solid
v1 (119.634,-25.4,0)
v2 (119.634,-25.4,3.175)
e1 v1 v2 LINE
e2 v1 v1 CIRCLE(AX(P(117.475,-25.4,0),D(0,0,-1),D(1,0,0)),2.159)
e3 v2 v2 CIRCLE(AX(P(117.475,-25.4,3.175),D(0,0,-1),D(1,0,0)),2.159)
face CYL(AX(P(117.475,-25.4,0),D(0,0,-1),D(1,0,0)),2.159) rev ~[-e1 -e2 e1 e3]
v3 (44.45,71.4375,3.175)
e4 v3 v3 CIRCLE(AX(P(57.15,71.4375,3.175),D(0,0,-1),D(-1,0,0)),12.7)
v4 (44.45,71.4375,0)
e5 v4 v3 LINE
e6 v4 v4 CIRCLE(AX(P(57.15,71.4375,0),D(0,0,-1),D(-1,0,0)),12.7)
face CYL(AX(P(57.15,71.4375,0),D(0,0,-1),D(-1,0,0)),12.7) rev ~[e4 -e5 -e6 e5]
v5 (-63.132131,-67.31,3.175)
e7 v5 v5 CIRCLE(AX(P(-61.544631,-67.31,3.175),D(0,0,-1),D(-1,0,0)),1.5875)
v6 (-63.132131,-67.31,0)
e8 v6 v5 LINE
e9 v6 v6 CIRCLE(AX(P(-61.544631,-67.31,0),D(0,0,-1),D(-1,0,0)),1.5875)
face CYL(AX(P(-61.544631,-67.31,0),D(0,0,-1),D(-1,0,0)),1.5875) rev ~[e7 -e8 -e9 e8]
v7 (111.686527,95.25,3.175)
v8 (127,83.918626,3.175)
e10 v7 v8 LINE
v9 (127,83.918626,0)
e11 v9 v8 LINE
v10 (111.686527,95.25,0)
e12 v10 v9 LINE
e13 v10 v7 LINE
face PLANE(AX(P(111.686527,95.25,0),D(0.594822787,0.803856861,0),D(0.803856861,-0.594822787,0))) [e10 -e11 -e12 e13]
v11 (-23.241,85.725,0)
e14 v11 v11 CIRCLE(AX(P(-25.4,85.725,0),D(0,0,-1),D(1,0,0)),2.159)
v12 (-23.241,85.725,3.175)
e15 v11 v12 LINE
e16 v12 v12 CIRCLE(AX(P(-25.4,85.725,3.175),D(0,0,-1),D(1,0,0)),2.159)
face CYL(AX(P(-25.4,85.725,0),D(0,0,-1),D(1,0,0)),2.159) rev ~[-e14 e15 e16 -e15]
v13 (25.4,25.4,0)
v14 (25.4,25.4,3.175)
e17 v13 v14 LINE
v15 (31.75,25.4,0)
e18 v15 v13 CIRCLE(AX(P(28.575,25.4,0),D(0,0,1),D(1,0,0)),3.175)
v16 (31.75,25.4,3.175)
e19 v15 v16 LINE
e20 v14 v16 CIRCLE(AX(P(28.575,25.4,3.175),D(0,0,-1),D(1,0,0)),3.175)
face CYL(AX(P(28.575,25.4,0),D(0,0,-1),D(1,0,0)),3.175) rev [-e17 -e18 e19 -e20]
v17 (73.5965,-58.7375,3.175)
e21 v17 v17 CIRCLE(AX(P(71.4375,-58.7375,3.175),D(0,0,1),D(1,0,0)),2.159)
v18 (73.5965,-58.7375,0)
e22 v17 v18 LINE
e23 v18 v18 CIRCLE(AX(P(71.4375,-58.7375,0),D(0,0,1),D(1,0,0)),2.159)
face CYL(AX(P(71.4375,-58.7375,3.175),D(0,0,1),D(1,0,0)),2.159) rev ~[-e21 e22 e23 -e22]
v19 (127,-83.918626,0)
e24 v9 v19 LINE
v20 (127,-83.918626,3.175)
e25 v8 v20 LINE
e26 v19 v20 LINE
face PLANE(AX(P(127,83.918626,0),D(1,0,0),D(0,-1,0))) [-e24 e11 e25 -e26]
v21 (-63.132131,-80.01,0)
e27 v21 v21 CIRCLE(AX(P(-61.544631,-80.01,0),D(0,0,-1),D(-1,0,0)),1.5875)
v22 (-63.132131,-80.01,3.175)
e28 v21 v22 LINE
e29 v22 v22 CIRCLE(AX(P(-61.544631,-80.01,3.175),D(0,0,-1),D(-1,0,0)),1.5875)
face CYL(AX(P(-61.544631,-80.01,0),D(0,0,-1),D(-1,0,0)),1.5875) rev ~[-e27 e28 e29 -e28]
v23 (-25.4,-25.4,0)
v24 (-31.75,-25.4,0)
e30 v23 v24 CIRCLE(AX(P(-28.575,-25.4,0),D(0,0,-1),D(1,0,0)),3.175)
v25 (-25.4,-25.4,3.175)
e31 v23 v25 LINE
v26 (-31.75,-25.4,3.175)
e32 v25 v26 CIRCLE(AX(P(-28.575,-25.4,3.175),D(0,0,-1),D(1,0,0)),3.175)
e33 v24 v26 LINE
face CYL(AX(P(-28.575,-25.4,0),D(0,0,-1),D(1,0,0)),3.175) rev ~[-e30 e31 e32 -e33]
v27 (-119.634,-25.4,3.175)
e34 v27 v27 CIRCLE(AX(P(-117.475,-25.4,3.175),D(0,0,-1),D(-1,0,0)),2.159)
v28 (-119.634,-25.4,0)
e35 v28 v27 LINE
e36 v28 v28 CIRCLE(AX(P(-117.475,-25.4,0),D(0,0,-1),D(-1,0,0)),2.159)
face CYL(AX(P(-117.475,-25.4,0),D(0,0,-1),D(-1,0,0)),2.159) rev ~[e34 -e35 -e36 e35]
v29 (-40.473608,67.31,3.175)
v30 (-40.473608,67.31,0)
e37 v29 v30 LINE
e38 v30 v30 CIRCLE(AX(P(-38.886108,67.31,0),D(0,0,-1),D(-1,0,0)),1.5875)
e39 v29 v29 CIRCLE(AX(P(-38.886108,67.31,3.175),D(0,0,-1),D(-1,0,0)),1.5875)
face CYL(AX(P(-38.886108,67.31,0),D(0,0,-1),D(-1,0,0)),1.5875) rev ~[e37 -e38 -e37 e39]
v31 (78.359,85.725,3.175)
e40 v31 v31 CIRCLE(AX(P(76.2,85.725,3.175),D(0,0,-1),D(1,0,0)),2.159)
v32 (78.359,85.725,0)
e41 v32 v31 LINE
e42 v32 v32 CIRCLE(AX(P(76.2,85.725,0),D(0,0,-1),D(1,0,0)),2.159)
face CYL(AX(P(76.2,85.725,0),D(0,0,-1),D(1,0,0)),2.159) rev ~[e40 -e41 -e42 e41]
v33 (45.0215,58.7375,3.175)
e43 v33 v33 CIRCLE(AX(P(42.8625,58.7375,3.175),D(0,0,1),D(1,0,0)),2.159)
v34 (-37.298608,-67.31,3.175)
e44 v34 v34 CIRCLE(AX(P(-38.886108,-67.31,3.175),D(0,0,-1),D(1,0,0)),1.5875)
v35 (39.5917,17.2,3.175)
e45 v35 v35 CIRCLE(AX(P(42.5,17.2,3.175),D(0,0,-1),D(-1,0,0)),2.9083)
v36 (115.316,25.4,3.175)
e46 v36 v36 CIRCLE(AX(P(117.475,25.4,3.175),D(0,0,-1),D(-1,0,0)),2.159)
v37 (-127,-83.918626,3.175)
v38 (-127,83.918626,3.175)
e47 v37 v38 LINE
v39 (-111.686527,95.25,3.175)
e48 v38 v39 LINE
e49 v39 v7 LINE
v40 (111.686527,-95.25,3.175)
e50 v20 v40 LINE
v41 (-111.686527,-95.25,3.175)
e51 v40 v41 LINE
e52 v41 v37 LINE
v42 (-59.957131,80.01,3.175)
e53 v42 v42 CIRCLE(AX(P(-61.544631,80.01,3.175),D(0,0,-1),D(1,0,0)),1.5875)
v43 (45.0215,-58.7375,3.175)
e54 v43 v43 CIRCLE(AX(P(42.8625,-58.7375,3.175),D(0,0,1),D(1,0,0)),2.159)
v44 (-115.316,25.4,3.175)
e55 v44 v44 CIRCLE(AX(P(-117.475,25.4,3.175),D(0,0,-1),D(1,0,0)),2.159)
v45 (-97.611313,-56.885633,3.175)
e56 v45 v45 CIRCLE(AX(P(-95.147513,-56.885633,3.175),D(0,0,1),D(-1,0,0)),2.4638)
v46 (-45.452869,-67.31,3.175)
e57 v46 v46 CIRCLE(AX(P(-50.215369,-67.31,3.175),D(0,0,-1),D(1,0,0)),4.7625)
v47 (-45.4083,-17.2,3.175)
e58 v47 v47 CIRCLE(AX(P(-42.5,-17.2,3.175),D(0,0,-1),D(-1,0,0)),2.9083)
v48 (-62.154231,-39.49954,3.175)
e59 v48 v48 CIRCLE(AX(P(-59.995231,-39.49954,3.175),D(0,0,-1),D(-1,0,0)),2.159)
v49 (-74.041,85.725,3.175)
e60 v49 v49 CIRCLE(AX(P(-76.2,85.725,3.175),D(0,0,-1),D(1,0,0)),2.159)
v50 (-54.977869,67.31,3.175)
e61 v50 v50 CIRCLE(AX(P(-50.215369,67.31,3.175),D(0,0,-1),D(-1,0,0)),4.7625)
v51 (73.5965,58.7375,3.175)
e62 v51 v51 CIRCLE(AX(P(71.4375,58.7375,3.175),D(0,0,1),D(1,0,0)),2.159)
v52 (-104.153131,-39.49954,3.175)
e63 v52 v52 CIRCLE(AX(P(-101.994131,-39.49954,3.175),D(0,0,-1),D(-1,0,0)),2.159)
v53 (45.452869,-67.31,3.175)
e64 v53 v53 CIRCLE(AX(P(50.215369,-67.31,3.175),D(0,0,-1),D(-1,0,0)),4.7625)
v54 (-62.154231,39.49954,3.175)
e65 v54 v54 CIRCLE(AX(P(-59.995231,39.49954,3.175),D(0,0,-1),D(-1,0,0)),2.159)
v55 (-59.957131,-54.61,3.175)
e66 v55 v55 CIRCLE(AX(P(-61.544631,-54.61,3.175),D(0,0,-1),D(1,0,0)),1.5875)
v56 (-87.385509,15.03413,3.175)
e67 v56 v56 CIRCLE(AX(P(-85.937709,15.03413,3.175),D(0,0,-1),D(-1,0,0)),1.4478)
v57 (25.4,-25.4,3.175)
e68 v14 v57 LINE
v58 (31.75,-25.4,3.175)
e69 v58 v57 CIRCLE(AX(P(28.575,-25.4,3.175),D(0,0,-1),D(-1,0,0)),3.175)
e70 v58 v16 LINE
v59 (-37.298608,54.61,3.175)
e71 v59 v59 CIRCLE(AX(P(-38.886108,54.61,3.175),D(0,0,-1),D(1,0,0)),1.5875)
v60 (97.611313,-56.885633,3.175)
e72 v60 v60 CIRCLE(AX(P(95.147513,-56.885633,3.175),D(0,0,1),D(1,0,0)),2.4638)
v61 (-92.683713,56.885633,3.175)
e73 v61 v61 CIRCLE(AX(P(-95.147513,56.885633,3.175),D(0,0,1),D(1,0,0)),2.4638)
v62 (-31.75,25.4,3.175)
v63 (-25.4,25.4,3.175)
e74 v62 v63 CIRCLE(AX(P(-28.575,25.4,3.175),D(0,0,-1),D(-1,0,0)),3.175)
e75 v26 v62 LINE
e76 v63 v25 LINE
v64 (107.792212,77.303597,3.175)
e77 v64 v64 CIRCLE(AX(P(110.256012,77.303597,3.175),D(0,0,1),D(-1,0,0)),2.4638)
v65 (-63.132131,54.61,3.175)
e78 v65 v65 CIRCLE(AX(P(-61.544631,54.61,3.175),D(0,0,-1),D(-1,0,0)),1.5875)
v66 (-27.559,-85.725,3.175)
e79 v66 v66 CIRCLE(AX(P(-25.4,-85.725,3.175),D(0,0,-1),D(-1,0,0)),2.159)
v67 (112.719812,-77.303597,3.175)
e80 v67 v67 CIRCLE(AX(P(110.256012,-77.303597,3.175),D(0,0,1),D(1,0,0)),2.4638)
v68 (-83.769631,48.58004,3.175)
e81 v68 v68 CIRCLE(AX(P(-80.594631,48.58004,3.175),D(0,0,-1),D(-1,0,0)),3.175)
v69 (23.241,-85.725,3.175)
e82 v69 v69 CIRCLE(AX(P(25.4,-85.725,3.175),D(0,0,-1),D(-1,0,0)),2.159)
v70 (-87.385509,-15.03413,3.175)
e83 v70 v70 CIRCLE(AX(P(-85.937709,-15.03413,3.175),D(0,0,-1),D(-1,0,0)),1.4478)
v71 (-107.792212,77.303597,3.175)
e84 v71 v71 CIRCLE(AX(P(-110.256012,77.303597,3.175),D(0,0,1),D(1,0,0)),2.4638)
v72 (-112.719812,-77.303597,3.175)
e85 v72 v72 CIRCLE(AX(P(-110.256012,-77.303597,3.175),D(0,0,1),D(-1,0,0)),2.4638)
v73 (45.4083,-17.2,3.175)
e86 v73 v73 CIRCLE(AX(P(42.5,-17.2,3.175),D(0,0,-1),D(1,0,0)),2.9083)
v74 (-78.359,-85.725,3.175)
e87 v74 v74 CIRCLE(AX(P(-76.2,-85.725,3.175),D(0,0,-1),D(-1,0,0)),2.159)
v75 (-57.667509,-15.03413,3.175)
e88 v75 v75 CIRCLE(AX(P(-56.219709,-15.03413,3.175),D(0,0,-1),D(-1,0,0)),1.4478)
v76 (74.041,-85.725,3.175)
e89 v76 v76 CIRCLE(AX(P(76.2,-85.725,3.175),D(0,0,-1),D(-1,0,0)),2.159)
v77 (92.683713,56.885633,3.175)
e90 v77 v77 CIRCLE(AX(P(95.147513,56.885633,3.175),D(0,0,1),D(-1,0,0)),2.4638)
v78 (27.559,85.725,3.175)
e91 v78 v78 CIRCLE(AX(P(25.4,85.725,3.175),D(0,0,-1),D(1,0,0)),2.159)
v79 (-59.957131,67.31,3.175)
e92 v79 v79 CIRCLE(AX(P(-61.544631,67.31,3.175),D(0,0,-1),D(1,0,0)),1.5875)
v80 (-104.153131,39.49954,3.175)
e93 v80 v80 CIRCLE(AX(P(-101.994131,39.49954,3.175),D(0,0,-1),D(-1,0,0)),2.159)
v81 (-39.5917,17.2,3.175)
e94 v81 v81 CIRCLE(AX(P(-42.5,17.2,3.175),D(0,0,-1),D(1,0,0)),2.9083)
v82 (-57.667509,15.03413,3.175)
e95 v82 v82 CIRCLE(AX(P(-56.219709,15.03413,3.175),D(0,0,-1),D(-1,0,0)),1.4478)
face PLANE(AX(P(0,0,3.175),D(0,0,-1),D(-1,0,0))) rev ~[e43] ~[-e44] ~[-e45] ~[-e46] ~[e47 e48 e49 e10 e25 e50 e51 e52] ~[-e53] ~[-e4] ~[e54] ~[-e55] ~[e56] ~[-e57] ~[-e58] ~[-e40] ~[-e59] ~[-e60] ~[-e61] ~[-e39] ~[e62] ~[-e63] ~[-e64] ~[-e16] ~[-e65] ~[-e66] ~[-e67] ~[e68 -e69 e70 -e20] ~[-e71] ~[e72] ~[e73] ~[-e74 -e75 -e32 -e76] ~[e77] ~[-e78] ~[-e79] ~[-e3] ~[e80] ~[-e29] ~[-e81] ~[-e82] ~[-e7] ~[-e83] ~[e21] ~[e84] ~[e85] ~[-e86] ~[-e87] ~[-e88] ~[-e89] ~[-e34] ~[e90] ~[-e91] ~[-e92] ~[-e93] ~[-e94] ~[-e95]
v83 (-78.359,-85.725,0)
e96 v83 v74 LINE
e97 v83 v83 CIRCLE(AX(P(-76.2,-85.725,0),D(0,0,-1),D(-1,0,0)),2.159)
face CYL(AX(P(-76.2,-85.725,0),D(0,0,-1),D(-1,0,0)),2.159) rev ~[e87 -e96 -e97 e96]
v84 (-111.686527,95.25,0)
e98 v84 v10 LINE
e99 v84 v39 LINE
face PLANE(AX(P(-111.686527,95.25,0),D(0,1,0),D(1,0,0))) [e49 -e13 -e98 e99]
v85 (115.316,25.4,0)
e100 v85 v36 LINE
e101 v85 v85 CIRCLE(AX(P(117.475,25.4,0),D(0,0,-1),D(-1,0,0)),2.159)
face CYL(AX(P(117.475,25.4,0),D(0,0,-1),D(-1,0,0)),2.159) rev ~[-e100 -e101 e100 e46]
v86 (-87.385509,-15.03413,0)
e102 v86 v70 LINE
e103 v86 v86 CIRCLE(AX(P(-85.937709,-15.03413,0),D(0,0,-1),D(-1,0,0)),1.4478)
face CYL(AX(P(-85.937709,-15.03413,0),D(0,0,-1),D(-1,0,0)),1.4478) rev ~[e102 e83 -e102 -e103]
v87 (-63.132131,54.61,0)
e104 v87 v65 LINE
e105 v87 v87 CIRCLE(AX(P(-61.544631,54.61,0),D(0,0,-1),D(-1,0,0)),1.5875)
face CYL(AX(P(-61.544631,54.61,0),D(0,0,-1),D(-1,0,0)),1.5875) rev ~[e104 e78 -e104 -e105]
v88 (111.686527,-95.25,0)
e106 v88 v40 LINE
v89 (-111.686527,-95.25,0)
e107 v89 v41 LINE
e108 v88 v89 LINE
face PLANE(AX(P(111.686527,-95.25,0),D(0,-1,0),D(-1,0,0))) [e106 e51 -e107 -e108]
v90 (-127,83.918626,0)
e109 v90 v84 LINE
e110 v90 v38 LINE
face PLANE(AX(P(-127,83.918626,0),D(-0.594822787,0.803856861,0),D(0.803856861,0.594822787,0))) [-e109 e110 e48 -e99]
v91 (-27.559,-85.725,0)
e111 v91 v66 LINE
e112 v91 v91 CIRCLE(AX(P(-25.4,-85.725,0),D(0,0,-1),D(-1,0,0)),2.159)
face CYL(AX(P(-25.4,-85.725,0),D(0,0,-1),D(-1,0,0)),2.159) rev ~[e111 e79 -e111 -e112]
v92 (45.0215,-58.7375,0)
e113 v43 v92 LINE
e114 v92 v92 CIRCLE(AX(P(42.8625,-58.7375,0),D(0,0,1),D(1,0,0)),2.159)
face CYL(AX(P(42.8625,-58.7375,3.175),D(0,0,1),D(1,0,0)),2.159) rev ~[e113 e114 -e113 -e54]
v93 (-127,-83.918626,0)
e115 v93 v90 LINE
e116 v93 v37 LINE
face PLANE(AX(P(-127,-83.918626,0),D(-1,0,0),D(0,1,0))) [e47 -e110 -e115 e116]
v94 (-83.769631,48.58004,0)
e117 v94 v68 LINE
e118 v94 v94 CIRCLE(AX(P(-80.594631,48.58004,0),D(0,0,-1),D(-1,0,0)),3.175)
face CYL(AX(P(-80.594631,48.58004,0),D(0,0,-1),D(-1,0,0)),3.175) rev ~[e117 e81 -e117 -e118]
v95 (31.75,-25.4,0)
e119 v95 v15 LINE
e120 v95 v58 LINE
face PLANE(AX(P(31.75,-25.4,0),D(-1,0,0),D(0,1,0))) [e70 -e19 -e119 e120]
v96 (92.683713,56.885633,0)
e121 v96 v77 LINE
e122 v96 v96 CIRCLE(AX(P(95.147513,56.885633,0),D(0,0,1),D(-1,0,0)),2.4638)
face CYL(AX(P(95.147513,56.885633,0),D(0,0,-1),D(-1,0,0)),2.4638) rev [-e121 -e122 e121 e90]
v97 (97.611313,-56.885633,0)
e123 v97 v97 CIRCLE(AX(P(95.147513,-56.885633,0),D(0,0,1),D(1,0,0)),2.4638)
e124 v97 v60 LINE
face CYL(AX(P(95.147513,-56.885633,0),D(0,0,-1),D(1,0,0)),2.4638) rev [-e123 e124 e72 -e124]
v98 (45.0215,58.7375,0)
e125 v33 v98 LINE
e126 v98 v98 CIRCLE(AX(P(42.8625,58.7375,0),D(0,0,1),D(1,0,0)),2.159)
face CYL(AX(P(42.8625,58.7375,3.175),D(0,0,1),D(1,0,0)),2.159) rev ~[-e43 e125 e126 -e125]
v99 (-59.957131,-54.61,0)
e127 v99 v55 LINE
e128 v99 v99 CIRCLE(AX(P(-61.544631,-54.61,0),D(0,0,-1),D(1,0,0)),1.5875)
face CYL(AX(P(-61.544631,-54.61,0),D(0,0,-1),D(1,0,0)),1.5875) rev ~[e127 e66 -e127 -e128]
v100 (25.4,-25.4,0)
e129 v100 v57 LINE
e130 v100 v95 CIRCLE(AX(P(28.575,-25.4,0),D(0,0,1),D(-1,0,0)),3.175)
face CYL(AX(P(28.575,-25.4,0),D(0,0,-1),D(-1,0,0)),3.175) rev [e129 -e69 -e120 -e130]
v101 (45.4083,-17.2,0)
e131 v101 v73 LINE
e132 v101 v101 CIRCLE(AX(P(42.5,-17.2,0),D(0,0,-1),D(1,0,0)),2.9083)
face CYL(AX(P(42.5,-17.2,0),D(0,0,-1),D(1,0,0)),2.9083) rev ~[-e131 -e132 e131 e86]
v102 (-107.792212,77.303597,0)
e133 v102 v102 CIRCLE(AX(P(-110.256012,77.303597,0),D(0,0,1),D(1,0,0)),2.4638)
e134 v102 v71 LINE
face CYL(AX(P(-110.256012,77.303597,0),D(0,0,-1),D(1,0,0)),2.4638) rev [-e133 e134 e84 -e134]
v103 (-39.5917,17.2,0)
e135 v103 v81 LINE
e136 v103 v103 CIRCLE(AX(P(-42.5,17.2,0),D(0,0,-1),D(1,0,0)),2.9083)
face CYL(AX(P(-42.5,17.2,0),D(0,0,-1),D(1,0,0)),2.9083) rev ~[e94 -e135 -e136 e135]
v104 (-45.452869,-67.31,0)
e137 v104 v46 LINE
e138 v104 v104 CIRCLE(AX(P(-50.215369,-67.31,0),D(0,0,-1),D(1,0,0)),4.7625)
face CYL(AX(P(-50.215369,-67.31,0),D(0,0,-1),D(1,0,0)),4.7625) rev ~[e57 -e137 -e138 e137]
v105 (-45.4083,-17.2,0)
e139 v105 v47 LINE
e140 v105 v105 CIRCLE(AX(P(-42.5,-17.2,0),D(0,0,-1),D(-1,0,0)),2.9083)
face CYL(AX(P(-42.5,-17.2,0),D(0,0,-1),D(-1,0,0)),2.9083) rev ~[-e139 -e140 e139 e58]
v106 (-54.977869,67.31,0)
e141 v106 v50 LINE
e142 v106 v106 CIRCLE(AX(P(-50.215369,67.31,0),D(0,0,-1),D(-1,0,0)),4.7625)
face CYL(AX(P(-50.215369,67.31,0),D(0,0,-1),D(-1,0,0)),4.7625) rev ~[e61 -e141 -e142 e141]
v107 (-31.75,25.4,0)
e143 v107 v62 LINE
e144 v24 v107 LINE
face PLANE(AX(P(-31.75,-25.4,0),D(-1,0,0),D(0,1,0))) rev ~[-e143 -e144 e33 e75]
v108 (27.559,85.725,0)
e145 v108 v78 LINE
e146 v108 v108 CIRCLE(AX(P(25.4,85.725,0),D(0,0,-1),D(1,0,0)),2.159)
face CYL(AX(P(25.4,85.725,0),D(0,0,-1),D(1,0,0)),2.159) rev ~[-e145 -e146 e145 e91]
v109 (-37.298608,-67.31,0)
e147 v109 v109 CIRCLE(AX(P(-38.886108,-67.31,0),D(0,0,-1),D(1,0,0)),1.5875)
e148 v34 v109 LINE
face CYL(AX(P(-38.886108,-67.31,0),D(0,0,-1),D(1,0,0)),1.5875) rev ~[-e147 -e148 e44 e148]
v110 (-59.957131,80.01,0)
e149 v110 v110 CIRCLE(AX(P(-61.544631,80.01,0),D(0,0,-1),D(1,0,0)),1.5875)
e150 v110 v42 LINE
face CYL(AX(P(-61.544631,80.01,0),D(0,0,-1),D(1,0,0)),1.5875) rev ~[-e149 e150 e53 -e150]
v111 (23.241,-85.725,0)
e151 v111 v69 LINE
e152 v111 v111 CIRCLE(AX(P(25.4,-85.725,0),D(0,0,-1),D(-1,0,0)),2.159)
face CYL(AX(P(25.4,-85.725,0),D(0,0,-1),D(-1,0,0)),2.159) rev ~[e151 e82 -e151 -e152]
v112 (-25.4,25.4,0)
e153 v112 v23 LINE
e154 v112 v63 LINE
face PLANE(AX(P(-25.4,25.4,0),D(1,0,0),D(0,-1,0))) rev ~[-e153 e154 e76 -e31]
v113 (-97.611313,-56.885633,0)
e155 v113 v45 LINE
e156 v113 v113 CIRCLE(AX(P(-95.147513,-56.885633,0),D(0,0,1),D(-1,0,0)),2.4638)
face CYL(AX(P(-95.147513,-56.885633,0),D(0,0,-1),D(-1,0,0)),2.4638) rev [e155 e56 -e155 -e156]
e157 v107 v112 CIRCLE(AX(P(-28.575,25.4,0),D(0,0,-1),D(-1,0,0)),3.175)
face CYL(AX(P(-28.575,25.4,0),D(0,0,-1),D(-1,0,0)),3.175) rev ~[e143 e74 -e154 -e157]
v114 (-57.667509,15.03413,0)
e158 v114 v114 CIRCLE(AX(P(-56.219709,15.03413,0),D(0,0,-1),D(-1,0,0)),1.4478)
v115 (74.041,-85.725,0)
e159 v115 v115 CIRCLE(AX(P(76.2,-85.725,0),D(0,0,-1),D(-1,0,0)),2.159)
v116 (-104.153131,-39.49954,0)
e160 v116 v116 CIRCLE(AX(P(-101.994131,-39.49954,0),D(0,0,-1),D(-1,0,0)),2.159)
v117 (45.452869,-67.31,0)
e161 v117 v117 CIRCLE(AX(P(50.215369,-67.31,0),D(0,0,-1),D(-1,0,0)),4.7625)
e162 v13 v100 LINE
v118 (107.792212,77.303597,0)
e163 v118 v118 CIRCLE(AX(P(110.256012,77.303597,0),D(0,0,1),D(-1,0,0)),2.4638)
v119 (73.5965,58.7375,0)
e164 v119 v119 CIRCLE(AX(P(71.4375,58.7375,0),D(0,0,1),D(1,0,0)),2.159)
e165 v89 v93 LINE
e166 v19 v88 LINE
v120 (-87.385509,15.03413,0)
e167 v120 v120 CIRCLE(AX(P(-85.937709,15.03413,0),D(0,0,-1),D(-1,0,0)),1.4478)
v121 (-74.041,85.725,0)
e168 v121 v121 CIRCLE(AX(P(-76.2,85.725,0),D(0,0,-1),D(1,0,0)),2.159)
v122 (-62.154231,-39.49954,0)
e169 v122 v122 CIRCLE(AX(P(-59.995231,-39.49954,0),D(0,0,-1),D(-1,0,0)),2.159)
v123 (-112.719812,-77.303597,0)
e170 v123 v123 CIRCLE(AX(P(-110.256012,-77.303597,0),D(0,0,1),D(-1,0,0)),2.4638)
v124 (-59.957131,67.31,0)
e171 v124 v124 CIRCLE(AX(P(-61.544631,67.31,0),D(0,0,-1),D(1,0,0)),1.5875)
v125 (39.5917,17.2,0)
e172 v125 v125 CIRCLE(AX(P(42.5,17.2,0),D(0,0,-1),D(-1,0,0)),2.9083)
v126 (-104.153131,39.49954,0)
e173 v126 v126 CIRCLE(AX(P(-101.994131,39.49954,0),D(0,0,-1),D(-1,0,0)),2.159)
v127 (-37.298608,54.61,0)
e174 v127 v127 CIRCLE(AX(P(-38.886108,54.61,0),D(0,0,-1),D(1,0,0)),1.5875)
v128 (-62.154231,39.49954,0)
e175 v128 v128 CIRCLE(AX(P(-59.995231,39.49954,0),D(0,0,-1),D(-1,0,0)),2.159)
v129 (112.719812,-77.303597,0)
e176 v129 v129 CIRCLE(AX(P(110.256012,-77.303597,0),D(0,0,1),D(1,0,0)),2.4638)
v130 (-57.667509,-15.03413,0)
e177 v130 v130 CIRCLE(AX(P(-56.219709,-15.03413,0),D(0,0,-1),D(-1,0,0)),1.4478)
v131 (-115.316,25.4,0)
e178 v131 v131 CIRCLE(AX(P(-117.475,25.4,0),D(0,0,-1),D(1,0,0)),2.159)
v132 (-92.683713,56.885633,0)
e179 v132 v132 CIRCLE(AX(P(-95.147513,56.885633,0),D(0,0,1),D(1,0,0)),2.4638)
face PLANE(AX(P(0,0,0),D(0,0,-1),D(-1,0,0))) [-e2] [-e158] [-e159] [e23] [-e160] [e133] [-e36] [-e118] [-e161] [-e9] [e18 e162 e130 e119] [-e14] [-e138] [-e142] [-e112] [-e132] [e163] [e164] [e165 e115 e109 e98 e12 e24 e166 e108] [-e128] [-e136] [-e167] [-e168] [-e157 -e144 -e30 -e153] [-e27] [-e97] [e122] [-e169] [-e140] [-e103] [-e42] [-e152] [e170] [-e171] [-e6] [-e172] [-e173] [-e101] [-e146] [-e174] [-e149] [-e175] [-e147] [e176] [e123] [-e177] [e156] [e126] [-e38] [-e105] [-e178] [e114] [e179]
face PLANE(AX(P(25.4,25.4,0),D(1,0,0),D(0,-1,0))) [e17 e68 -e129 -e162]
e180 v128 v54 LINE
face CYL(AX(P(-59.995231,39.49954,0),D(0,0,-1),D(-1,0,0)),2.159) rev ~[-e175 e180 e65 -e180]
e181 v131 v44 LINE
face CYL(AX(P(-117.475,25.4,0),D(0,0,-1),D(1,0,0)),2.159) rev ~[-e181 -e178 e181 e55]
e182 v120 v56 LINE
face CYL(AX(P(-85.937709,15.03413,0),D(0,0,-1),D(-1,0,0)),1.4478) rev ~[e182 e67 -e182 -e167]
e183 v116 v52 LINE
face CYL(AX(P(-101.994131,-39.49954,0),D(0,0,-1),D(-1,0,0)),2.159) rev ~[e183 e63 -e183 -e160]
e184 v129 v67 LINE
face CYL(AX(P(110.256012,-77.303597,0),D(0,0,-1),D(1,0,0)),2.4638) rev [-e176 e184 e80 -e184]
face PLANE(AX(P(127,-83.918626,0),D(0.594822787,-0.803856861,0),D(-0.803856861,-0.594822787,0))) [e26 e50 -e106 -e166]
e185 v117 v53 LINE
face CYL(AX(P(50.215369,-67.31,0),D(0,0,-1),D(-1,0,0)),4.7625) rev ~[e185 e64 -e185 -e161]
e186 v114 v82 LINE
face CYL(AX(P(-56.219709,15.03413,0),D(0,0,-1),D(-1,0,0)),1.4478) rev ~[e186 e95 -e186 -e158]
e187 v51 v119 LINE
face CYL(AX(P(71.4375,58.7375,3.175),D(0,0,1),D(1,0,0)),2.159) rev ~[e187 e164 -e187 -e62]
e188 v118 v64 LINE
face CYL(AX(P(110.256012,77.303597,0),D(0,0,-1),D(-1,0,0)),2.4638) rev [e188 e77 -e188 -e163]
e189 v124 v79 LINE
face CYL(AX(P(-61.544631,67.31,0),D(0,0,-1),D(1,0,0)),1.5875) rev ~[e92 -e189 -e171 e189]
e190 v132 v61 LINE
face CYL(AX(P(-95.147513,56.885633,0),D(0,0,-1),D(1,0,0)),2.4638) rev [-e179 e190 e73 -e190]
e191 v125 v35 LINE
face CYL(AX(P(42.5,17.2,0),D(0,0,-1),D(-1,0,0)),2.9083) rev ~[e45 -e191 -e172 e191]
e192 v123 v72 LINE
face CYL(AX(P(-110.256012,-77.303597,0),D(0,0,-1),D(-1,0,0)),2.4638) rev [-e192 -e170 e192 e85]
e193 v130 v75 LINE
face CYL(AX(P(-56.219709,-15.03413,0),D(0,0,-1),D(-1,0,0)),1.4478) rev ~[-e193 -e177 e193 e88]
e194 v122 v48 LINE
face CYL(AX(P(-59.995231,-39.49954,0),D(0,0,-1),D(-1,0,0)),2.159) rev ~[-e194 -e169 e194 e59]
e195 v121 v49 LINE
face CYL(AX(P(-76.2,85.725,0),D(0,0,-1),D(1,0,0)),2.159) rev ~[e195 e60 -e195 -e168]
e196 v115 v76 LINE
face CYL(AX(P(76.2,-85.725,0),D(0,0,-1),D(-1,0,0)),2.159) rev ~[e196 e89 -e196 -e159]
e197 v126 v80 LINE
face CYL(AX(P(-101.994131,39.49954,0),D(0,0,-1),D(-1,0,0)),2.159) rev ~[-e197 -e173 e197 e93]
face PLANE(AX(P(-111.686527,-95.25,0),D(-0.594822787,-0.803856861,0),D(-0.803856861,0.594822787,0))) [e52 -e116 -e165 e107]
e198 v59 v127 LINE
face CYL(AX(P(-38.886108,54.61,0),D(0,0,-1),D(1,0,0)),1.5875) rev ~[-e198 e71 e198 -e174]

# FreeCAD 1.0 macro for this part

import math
import FreeCAD as App
import Part
import Sketcher
Q = App.Units.Quantity

doc = App.newDocument("Part")
body = doc.addObject("PartDesign::Body", "Body")

# Sketch on XY plane
sketch1 = body.newObject("Sketcher::SketchObject", "Sketch")
sketch1.AttachmentSupport = (doc.getObject("XY_Plane"), [""])
sketch1.MapMode = "FlatFace"
sketch1.addGeometry(Part.LineSegment(App.Vector(-127, -83.9, 0), App.Vector(-111.7, -95.2, 0)), False)
sketch1.addGeometry(Part.LineSegment(App.Vector(-111.7, -95.2, 0), App.Vector(111.7, -95.2, 0)), False)
sketch1.addGeometry(Part.LineSegment(App.Vector(111.7, -95.2, 0), App.Vector(127, -83.9, 0)), False)
sketch1.addGeometry(Part.LineSegment(App.Vector(127, -83.9, 0), App.Vector(127, 83.9, 0)), False)
sketch1.addGeometry(Part.LineSegment(App.Vector(127, 83.9, 0), App.Vector(111.7, 95.2, 0)), False)
sketch1.addGeometry(Part.LineSegment(App.Vector(111.7, 95.2, 0), App.Vector(-111.7, 95.2, 0)), False)
sketch1.addGeometry(Part.LineSegment(App.Vector(-111.7, 95.2, 0), App.Vector(-127, 83.9, 0)), False)
sketch1.addGeometry(Part.LineSegment(App.Vector(-127, 83.9, 0), App.Vector(-127, -83.9, 0)), False)
sketch1.addGeometry(Part.Circle(App.Vector(110.3, -77.3, 0), App.Vector(0, 0, 1), 2.5), False)
sketch1.addGeometry(Part.Circle(App.Vector(95.1, -56.9, 0), App.Vector(0, 0, 1), 2.5), False)
sketch1.addGeometry(Part.Circle(App.Vector(-110.3, -77.3, 0), App.Vector(0, 0, 1), 2.5), False)
sketch1.addGeometry(Part.Circle(App.Vector(-95.1, -56.9, 0), App.Vector(0, 0, 1), 2.5), False)
sketch1.addGeometry(Part.Circle(App.Vector(95.1, 56.9, 0), App.Vector(0, 0, 1), 2.5), False)
sketch1.addGeometry(Part.Circle(App.Vector(110.3, 77.3, 0), App.Vector(0, 0, 1), 2.5), False)
sketch1.addGeometry(Part.Circle(App.Vector(-95.1, 56.9, 0), App.Vector(0, 0, 1), 2.5), False)
sketch1.addGeometry(Part.Circle(App.Vector(-110.3, 77.3, 0), App.Vector(0, 0, 1), 2.5), False)
sketch1.addConstraint(Sketcher.Constraint("Coincident", 0, 2, 1, 1))
sketch1.addConstraint(Sketcher.Constraint("Coincident", 1, 2, 2, 1))
sketch1.addConstraint(Sketcher.Constraint("Coincident", 2, 2, 3, 1))
sketch1.addConstraint(Sketcher.Constraint("Coincident", 3, 2, 4, 1))
sketch1.addConstraint(Sketcher.Constraint("Coincident", 4, 2, 5, 1))
sketch1.addConstraint(Sketcher.Constraint("Coincident", 5, 2, 6, 1))
sketch1.addConstraint(Sketcher.Constraint("Coincident", 6, 2, 7, 1))
sketch1.addConstraint(Sketcher.Constraint("Coincident", 7, 2, 0, 1))
sketch1.addConstraint(Sketcher.Constraint("Horizontal", 1))
sketch1.addConstraint(Sketcher.Constraint("Vertical", 3))
sketch1.addConstraint(Sketcher.Constraint("Horizontal", 5))
sketch1.addConstraint(Sketcher.Constraint("Vertical", 7))
sketch1.addConstraint(Sketcher.Constraint("Equal", 8, 9))
sketch1.addConstraint(Sketcher.Constraint("Equal", 9, 10))
sketch1.addConstraint(Sketcher.Constraint("Equal", 10, 11))
sketch1.addConstraint(Sketcher.Constraint("Equal", 11, 12))
sketch1.addConstraint(Sketcher.Constraint("Equal", 12, 13))
sketch1.addConstraint(Sketcher.Constraint("Equal", 13, 14))
sketch1.addConstraint(Sketcher.Constraint("Equal", 14, 15))
sketch1.addConstraint(Sketcher.Constraint("Symmetric", 11, 3, 12, 3, -1, 1))
sketch1.addConstraint(Sketcher.Constraint("Symmetric", 10, 3, 13, 3, -1, 1))
sketch1.addConstraint(Sketcher.Constraint("Symmetric", 9, 3, 14, 3, -1, 1))
sketch1.addConstraint(Sketcher.Constraint("Symmetric", 8, 3, 15, 3, -1, 1))
sketch1.addConstraint(Sketcher.Constraint("Symmetric", 0, 2, 4, 2, -1, 1))
sketch1.addConstraint(Sketcher.Constraint("Symmetric", 2, 2, 6, 2, -1, 1))
sketch1.addConstraint(Sketcher.Constraint("Symmetric", 8, 3, 10, 3, -2))
sketch1.addConstraint(Sketcher.Constraint("Symmetric", 9, 3, 11, 3, -2))
sketch1.addConstraint(Sketcher.Constraint("Parallel", 0, 4))
sketch1.addConstraint(Sketcher.Constraint("Parallel", 2, 6))
sketch1.addConstraint(Sketcher.Constraint("Horizontal", 3, 2, 6, 2))
sketch1.addConstraint(Sketcher.Constraint("Vertical", 1, 2, 4, 2))
sketch1.addConstraint(Sketcher.Constraint("Diameter", 8, Q("0.194 in")))
sketch1.addConstraint(Sketcher.Constraint("DistanceX", -1, 1, 2, 2, Q("5 in")))
sketch1.addConstraint(Sketcher.Constraint("Angle", 0, Q("-36.5 deg")))
sketch1.addConstraint(Sketcher.Constraint("DistanceY", 0, 2, 5, 2, Q("7.5 in")))
sketch1.addConstraint(Sketcher.Constraint("Distance", 0, Q("0.75 in")))
sketch1.addConstraint(Sketcher.Constraint("DistanceX", 9, 3, 8, 3, 15.108499))
sketch1.addConstraint(Sketcher.Constraint("DistanceX", -1, 1, 8, 3, 110.256012))
sketch1.addConstraint(Sketcher.Constraint("DistanceY", 8, 3, 12, 3, 134.18923))
sketch1.addConstraint(Sketcher.Constraint("DistanceY", 2, 2, 8, 3, 6.615029))
pad1 = body.newObject("PartDesign::Pad", "Pad")
pad1.Profile = sketch1
pad1.Length = Q("0.125 in")

# Sketch on XY plane
sketch2 = body.newObject("Sketcher::SketchObject", "Sketch001")
sketch2.AttachmentSupport = (doc.getObject("XY_Plane"), [""])
sketch2.MapMode = "FlatFace"
sketch2.AttachmentOffset = App.Placement(App.Vector(0, 0, 0.125 * 25.4), App.Rotation())
sketch2.addGeometry(Part.Circle(App.Vector(42.9, -58.7, 0), App.Vector(0, 0, 1), 2.2), False)
sketch2.addGeometry(Part.Circle(App.Vector(71.4, -58.7, 0), App.Vector(0, 0, 1), 2.2), False)
sketch2.addGeometry(Part.Circle(App.Vector(71.4, 58.7, 0), App.Vector(0, 0, 1), 2.2), False)
sketch2.addGeometry(Part.Circle(App.Vector(42.9, 58.7, 0), App.Vector(0, 0, 1), 2.2), False)
sketch2.addConstraint(Sketcher.Constraint("Equal", 0, 1))
sketch2.addConstraint(Sketcher.Constraint("Equal", 1, 2))
sketch2.addConstraint(Sketcher.Constraint("Equal", 2, 3))
sketch2.addConstraint(Sketcher.Constraint("Symmetric", 1, 3, 2, 3, -1))
sketch2.addConstraint(Sketcher.Constraint("Symmetric", 0, 3, 3, 3, -1))
sketch2.addConstraint(Sketcher.Constraint("Horizontal", 0, 3, 1, 3))
sketch2.addConstraint(Sketcher.Constraint("Diameter", 0, Q("0.17 in")))
sketch2.addConstraint(Sketcher.Constraint("DistanceX", -1, 1, 0, 3, Q("1.6875 in")))
sketch2.addConstraint(Sketcher.Constraint("DistanceY", 0, 3, -1, 1, Q("2.3125 in")))
sketch2.addConstraint(Sketcher.Constraint("DistanceX", -1, 1, 1, 3, Q("2.8125 in")))
pocket1 = body.newObject("PartDesign::Pocket", "Pocket")
pocket1.Profile = sketch2
pocket1.Type = "ThroughAll"

# Sketch on XY plane
sketch3 = body.newObject("Sketcher::SketchObject", "Sketch002")
sketch3.AttachmentSupport = (doc.getObject("XY_Plane"), [""])
sketch3.MapMode = "FlatFace"
sketch3.addGeometry(Part.Circle(App.Vector(-80.6, 48.6, 0), App.Vector(0, 0, 1), 3.2), False)
sketch3.addGeometry(Part.Circle(App.Vector(57.1, 71.4, 0), App.Vector(0, 0, 1), 12.7), False)
sketch3.addGeometry(Part.Circle(App.Vector(-60, 39.5, 0), App.Vector(0, 0, 1), 2.2), False)
sketch3.addGeometry(Part.Circle(App.Vector(-102, 39.5, 0), App.Vector(0, 0, 1), 2.2), False)
sketch3.addGeometry(Part.Circle(App.Vector(-60, -39.5, 0), App.Vector(0, 0, 1), 2.2), False)
sketch3.addGeometry(Part.Circle(App.Vector(-102, -39.5, 0), App.Vector(0, 0, 1), 2.2), False)
sketch3.addGeometry(Part.Circle(App.Vector(-56.2, 15, 0), App.Vector(0, 0, 1), 1.4), False)
sketch3.addGeometry(Part.Circle(App.Vector(-56.2, -15, 0), App.Vector(0, 0, 1), 1.4), False)
sketch3.addGeometry(Part.Circle(App.Vector(-85.9, -15, 0), App.Vector(0, 0, 1), 1.4), False)
sketch3.addGeometry(Part.Circle(App.Vector(-85.9, 15, 0), App.Vector(0, 0, 1), 1.4), False)
sketch3.addGeometry(Part.LineSegment(App.Vector(25.4, -25.4, 0), App.Vector(25.4, 25.4, 0)), False)
sketch3.addGeometry(Part.ArcOfCircle(Part.Circle(App.Vector(28.6, 25.4, 0), App.Vector(0, 0, 1), 3.2), math.radians(0), math.radians(180)), False)
sketch3.addGeometry(Part.LineSegment(App.Vector(31.8, 25.4, 0), App.Vector(31.8, -25.4, 0)), False)
sketch3.addGeometry(Part.ArcOfCircle(Part.Circle(App.Vector(28.6, -25.4, 0), App.Vector(0, 0, 1), 3.2), math.radians(180), math.radians(360)), False)
sketch3.addGeometry(Part.LineSegment(App.Vector(-25.4, 25.4, 0), App.Vector(-25.4, -25.4, 0)), False)
sketch3.addGeometry(Part.ArcOfCircle(Part.Circle(App.Vector(-28.6, -25.4, 0), App.Vector(0, 0, 1), 3.2), math.radians(180), math.radians(360)), False)
sketch3.addGeometry(Part.LineSegment(App.Vector(-31.8, -25.4, 0), App.Vector(-31.8, 25.4, 0)), False)
sketch3.addGeometry(Part.ArcOfCircle(Part.Circle(App.Vector(-28.6, 25.4, 0), App.Vector(0, 0, 1), 3.2), math.radians(0), math.radians(180)), False)
sketch3.addConstraint(Sketcher.Constraint("Tangent", 10, 2, 11, 2))
sketch3.addConstraint(Sketcher.Constraint("Tangent", 11, 1, 12, 1))
sketch3.addConstraint(Sketcher.Constraint("Tangent", 12, 2, 13, 2))
sketch3.addConstraint(Sketcher.Constraint("Tangent", 13, 1, 10, 1))
sketch3.addConstraint(Sketcher.Constraint("Tangent", 14, 2, 15, 2))
sketch3.addConstraint(Sketcher.Constraint("Tangent", 15, 1, 16, 1))
sketch3.addConstraint(Sketcher.Constraint("Tangent", 16, 2, 17, 2))
sketch3.addConstraint(Sketcher.Constraint("Tangent", 17, 1, 14, 1))
sketch3.addConstraint(Sketcher.Constraint("Vertical", 10))
sketch3.addConstraint(Sketcher.Constraint("Vertical", 12))
sketch3.addConstraint(Sketcher.Constraint("Vertical", 14))
sketch3.addConstraint(Sketcher.Constraint("Vertical", 16))
sketch3.addConstraint(Sketcher.Constraint("Equal", 2, 3))
sketch3.addConstraint(Sketcher.Constraint("Equal", 3, 4))
sketch3.addConstraint(Sketcher.Constraint("Equal", 4, 5))
sketch3.addConstraint(Sketcher.Constraint("Equal", 6, 7))
sketch3.addConstraint(Sketcher.Constraint("Equal", 7, 8))
sketch3.addConstraint(Sketcher.Constraint("Equal", 8, 9))
sketch3.addConstraint(Sketcher.Constraint("Equal", 0, 11))
sketch3.addConstraint(Sketcher.Constraint("Equal", 13, 15))
sketch3.addConstraint(Sketcher.Constraint("Symmetric", 11, 3, 15, 3, -1, 1))
sketch3.addConstraint(Sketcher.Constraint("Symmetric", 2, 3, 4, 3, -1))
sketch3.addConstraint(Sketcher.Constraint("Symmetric", 3, 3, 5, 3, -1))
sketch3.addConstraint(Sketcher.Constraint("Symmetric", 6, 3, 7, 3, -1))
sketch3.addConstraint(Sketcher.Constraint("Symmetric", 8, 3, 9, 3, -1))
sketch3.addConstraint(Sketcher.Constraint("Horizontal", 2, 3, 3, 3))
sketch3.addConstraint(Sketcher.Constraint("Horizontal", 7, 3, 8, 3))
sketch3.addConstraint(Sketcher.Constraint("Horizontal", 13, 3, 15, 3))
sketch3.addConstraint(Sketcher.Constraint("Horizontal", 11, 3, 17, 3))
sketch3.addConstraint(Sketcher.Constraint("Diameter", 1, Q("1 in")))
sketch3.addConstraint(Sketcher.Constraint("Diameter", 0, Q("0.25 in")))
sketch3.addConstraint(Sketcher.Constraint("Diameter", 2, Q("0.17 in")))
sketch3.addConstraint(Sketcher.Constraint("DistanceY", 10, 1, 10, 2, Q("2 in")))
sketch3.addConstraint(Sketcher.Constraint("Diameter", 6, Q("0.114 in")))
sketch3.addConstraint(Sketcher.Constraint("DistanceX", -1, 1, 10, 2, Q("1 in")))
sketch3.addConstraint(Sketcher.Constraint("DistanceX", 11, 1, 1, 3, Q("1 in")))
sketch3.addConstraint(Sketcher.Constraint("DistanceX", 8, 3, 7, 3, Q("1.17 in")))
sketch3.addConstraint(Sketcher.Constraint("DistanceY", -1, 1, 1, 3, Q("2.8125 in")))
sketch3.addConstraint(Sketcher.Constraint("DistanceX", 0, 3, 2, 3, Q("0.811 in")))
sketch3.addConstraint(Sketcher.Constraint("DistanceY", -1, 1, 0, 3, Q("1.9126 in")))
sketch3.addConstraint(Sketcher.Constraint("DistanceY", -1, 1, 2, 3, Q("1.5551 in")))
sketch3.addConstraint(Sketcher.Constraint("DistanceX", 3, 3, 0, 3, Q("0.8425 in")))
sketch3.addConstraint(Sketcher.Constraint("DistanceX", 0, 3, -1, 1, 80.594631))
sketch3.addConstraint(Sketcher.Constraint("DistanceX", 6, 3, -1, 1, 56.219709))
sketch3.addConstraint(Sketcher.Constraint("DistanceY", -1, 1, 6, 3, 15.03413))
pocket2 = body.newObject("PartDesign::Pocket", "Pocket001")
pocket2.Profile = sketch3
pocket2.Type = "ThroughAll"
pocket2.Reversed = True

# Sketch on XY plane
sketch4 = body.newObject("Sketcher::SketchObject", "Sketch003")
sketch4.AttachmentSupport = (doc.getObject("XY_Plane"), [""])
sketch4.MapMode = "FlatFace"
sketch4.addGeometry(Part.Circle(App.Vector(76.2, -85.7, 0), App.Vector(0, 0, 1), 2.2), False)
sketch4.addGeometry(Part.Circle(App.Vector(25.4, -85.7, 0), App.Vector(0, 0, 1), 2.2), False)
sketch4.addGeometry(Part.Circle(App.Vector(-25.4, -85.7, 0), App.Vector(0, 0, 1), 2.2), False)
sketch4.addGeometry(Part.Circle(App.Vector(-76.2, -85.7, 0), App.Vector(0, 0, 1), 2.2), False)
sketch4.addGeometry(Part.Circle(App.Vector(-76.2, 85.7, 0), App.Vector(0, 0, 1), 2.2), False)
sketch4.addGeometry(Part.Circle(App.Vector(-25.4, 85.7, 0), App.Vector(0, 0, 1), 2.2), False)
sketch4.addGeometry(Part.Circle(App.Vector(25.4, 85.7, 0), App.Vector(0, 0, 1), 2.2), False)
sketch4.addGeometry(Part.Circle(App.Vector(76.2, 85.7, 0), App.Vector(0, 0, 1), 2.2), False)
sketch4.addGeometry(Part.Circle(App.Vector(-117.5, -25.4, 0), App.Vector(0, 0, 1), 2.2), False)
sketch4.addGeometry(Part.Circle(App.Vector(-117.5, 25.4, 0), App.Vector(0, 0, 1), 2.2), False)
sketch4.addGeometry(Part.Circle(App.Vector(117.5, 25.4, 0), App.Vector(0, 0, 1), 2.2), False)
sketch4.addGeometry(Part.Circle(App.Vector(117.5, -25.4, 0), App.Vector(0, 0, 1), 2.2), False)
sketch4.addConstraint(Sketcher.Constraint("Equal", 0, 1))
sketch4.addConstraint(Sketcher.Constraint("Equal", 1, 2))
sketch4.addConstraint(Sketcher.Constraint("Equal", 2, 3))
sketch4.addConstraint(Sketcher.Constraint("Equal", 3, 4))
sketch4.addConstraint(Sketcher.Constraint("Equal", 4, 5))
sketch4.addConstraint(Sketcher.Constraint("Equal", 5, 6))
sketch4.addConstraint(Sketcher.Constraint("Equal", 6, 7))
sketch4.addConstraint(Sketcher.Constraint("Equal", 7, 8))
sketch4.addConstraint(Sketcher.Constraint("Equal", 8, 9))
sketch4.addConstraint(Sketcher.Constraint("Equal", 9, 10))
sketch4.addConstraint(Sketcher.Constraint("Equal", 10, 11))
sketch4.addConstraint(Sketcher.Constraint("Symmetric", 0, 3, 4, 3, -1, 1))
sketch4.addConstraint(Sketcher.Constraint("Symmetric", 1, 3, 5, 3, -1, 1))
sketch4.addConstraint(Sketcher.Constraint("Symmetric", 2, 3, 6, 3, -1, 1))
sketch4.addConstraint(Sketcher.Constraint("Symmetric", 3, 3, 7, 3, -1, 1))
sketch4.addConstraint(Sketcher.Constraint("Symmetric", 8, 3, 10, 3, -1, 1))
sketch4.addConstraint(Sketcher.Constraint("Symmetric", 9, 3, 11, 3, -1, 1))
sketch4.addConstraint(Sketcher.Constraint("Symmetric", 1, 3, 2, 3, -2))
sketch4.addConstraint(Sketcher.Constraint("Symmetric", 0, 3, 3, 3, -2))
sketch4.addConstraint(Sketcher.Constraint("Symmetric", 9, 3, 10, 3, -2))
sketch4.addConstraint(Sketcher.Constraint("Horizontal", 0, 3, 1, 3))
sketch4.addConstraint(Sketcher.Constraint("Diameter", 0, Q("0.17 in")))
sketch4.addConstraint(Sketcher.Constraint("DistanceX", -1, 1, 0, 3, Q("3 in")))
sketch4.addConstraint(Sketcher.Constraint("DistanceX", -1, 1, 1, 3, Q("1 in")))
sketch4.addConstraint(Sketcher.Constraint("DistanceY", 8, 3, -1, 1, Q("1 in")))
sketch4.addConstraint(Sketcher.Constraint("DistanceY", 3, 3, 4, 3, Q("6.75 in")))
sketch4.addConstraint(Sketcher.Constraint("DistanceX", 8, 3, -1, 1, Q("4.625 in")))
pocket3 = body.newObject("PartDesign::Pocket", "Pocket002")
pocket3.Profile = sketch4
pocket3.Type = "ThroughAll"
pocket3.Reversed = True

# Sketch on XY plane
sketch5 = body.newObject("Sketcher::SketchObject", "Sketch004")
sketch5.AttachmentSupport = (doc.getObject("XY_Plane"), [""])
sketch5.MapMode = "FlatFace"
sketch5.addGeometry(Part.Circle(App.Vector(42.5, 17.2, 0), App.Vector(0, 0, 1), 2.9), False)
sketch5.addGeometry(Part.Circle(App.Vector(42.5, -17.2, 0), App.Vector(0, 0, 1), 2.9), False)
sketch5.addGeometry(Part.Circle(App.Vector(-42.5, -17.2, 0), App.Vector(0, 0, 1), 2.9), False)
sketch5.addGeometry(Part.Circle(App.Vector(-42.5, 17.2, 0), App.Vector(0, 0, 1), 2.9), False)
sketch5.addConstraint(Sketcher.Constraint("Equal", 0, 1))
sketch5.addConstraint(Sketcher.Constraint("Equal", 1, 2))
sketch5.addConstraint(Sketcher.Constraint("Equal", 2, 3))
sketch5.addConstraint(Sketcher.Constraint("Symmetric", 0, 3, 2, 3, -1, 1))
sketch5.addConstraint(Sketcher.Constraint("Symmetric", 1, 3, 3, 3, -1, 1))
sketch5.addConstraint(Sketcher.Constraint("Symmetric", 1, 3, 2, 3, -2))
sketch5.addConstraint(Sketcher.Constraint("Diameter", 0, Q("0.229 in")))
sketch5.addConstraint(Sketcher.Constraint("DistanceX", -1, 1, 0, 3, 42.5))
sketch5.addConstraint(Sketcher.Constraint("DistanceY", -1, 1, 0, 3, 17.2))
pocket4 = body.newObject("PartDesign::Pocket", "Pocket003")
pocket4.Profile = sketch5
pocket4.Type = "ThroughAll"
pocket4.Reversed = True

# Sketch on XY plane
sketch6 = body.newObject("Sketcher::SketchObject", "Sketch005")
sketch6.AttachmentSupport = (doc.getObject("XY_Plane"), [""])
sketch6.MapMode = "FlatFace"
sketch6.addGeometry(Part.Circle(App.Vector(-61.5, -54.6, 0), App.Vector(0, 0, 1), 1.6), False)
sketch6.addGeometry(Part.Circle(App.Vector(-61.5, -67.3, 0), App.Vector(0, 0, 1), 1.6), False)
sketch6.addGeometry(Part.Circle(App.Vector(-61.5, 54.6, 0), App.Vector(0, 0, 1), 1.6), False)
sketch6.addGeometry(Part.Circle(App.Vector(-61.5, -80, 0), App.Vector(0, 0, 1), 1.6), False)
sketch6.addGeometry(Part.Circle(App.Vector(50.2, -67.3, 0), App.Vector(0, 0, 1), 4.8), False)
sketch6.addGeometry(Part.Circle(App.Vector(-50.2, -67.3, 0), App.Vector(0, 0, 1), 4.8), False)
sketch6.addGeometry(Part.Circle(App.Vector(-61.5, 67.3, 0), App.Vector(0, 0, 1), 1.6), False)
sketch6.addGeometry(Part.Circle(App.Vector(-61.5, 80, 0), App.Vector(0, 0, 1), 1.6), False)
sketch6.addGeometry(Part.Circle(App.Vector(-50.2, 67.3, 0), App.Vector(0, 0, 1), 4.8), False)
sketch6.addConstraint(Sketcher.Constraint("Equal", 0, 1))
sketch6.addConstraint(Sketcher.Constraint("Equal", 1, 2))
sketch6.addConstraint(Sketcher.Constraint("Equal", 2, 3))
sketch6.addConstraint(Sketcher.Constraint("Equal", 4, 5))
sketch6.addConstraint(Sketcher.Constraint("Equal", 3, 6))
sketch6.addConstraint(Sketcher.Constraint("Equal", 6, 7))
sketch6.addConstraint(Sketcher.Constraint("Equal", 5, 8))
sketch6.addConstraint(Sketcher.Constraint("Symmetric", 4, 3, 8, 3, -1, 1))
sketch6.addConstraint(Sketcher.Constraint("Symmetric", 4, 3, 5, 3, -2))
sketch6.addConstraint(Sketcher.Constraint("Symmetric", 0, 3, 2, 3, -1))
sketch6.addConstraint(Sketcher.Constraint("Symmetric", 1, 3, 6, 3, -1))
sketch6.addConstraint(Sketcher.Constraint("Symmetric", 3, 3, 7, 3, -1))
sketch6.addConstraint(Sketcher.Constraint("Horizontal", 1, 3, 4, 3))
sketch6.addConstraint(Sketcher.Constraint("Vertical", 0, 3, 1, 3))
sketch6.addConstraint(Sketcher.Constraint("Vertical", 2, 3, 3, 3))
sketch6.addConstraint(Sketcher.Constraint("Diameter", 0, Q("0.125 in")))
sketch6.addConstraint(Sketcher.Constraint("Diameter", 4, Q("0.375 in")))
sketch6.addConstraint(Sketcher.Constraint("DistanceY", 3, 3, 0, 3, Q("1 in")))
sketch6.addConstraint(Sketcher.Constraint("DistanceY", 1, 3, 0, 3, Q("0.5 in")))
sketch6.addConstraint(Sketcher.Constraint("DistanceY", 0, 3, 2, 3, Q("4.3 in")))
sketch6.addConstraint(Sketcher.Constraint("DistanceX", 1, 3, 4, 3, Q("4.4 in")))
sketch6.addConstraint(Sketcher.Constraint("DistanceX", 0, 3, -1, 1, 61.544631))
pocket5 = body.newObject("PartDesign::Pocket", "Pocket004")
pocket5.Profile = sketch6
pocket5.Type = "ThroughAll"
pocket5.Reversed = True

# Sketch on XY plane
sketch7 = body.newObject("Sketcher::SketchObject", "Sketch006")
sketch7.AttachmentSupport = (doc.getObject("XY_Plane"), [""])
sketch7.MapMode = "FlatFace"
sketch7.addGeometry(Part.Circle(App.Vector(-38.9, 67.3, 0), App.Vector(0, 0, 1), 1.6), False)
sketch7.addGeometry(Part.Circle(App.Vector(-38.9, 54.6, 0), App.Vector(0, 0, 1), 1.6), False)
sketch7.addGeometry(Part.Circle(App.Vector(-38.9, -67.3, 0), App.Vector(0, 0, 1), 1.6), False)
sketch7.addConstraint(Sketcher.Constraint("Equal", 0, 1))
sketch7.addConstraint(Sketcher.Constraint("Equal", 1, 2))
sketch7.addConstraint(Sketcher.Constraint("Symmetric", 0, 3, 2, 3, -1))
sketch7.addConstraint(Sketcher.Constraint("Vertical", 0, 3, 1, 3))
sketch7.addConstraint(Sketcher.Constraint("Diameter", 0, Q("0.125 in")))
sketch7.addConstraint(Sketcher.Constraint("DistanceY", 1, 3, 0, 3, Q("0.5 in")))
sketch7.addConstraint(Sketcher.Constraint("DistanceY", 2, 3, 1, 3, Q("4.8 in")))
sketch7.addConstraint(Sketcher.Constraint("DistanceX", 0, 3, -1, 1, 38.886108))
pocket6 = body.newObject("PartDesign::Pocket", "Pocket005")
pocket6.Profile = sketch7
pocket6.Length = Q("0.1 in")
pocket6.Reversed = True

# Sketch on XY plane
sketch8 = body.newObject("Sketcher::SketchObject", "Sketch007")
sketch8.AttachmentSupport = (doc.getObject("XY_Plane"), [""])
sketch8.MapMode = "FlatFace"
sketch8.addGeometry(Part.Circle(App.Vector(-38.9, 67.3, 0), App.Vector(0, 0, 1), 1.6), False)
sketch8.addGeometry(Part.Circle(App.Vector(-38.9, 54.6, 0), App.Vector(0, 0, 1), 1.6), False)
sketch8.addGeometry(Part.Circle(App.Vector(-38.9, -67.3, 0), App.Vector(0, 0, 1), 1.6), False)
sketch8.addConstraint(Sketcher.Constraint("Equal", 0, 1))
sketch8.addConstraint(Sketcher.Constraint("Equal", 1, 2))
sketch8.addConstraint(Sketcher.Constraint("Symmetric", 0, 3, 2, 3, -1))
sketch8.addConstraint(Sketcher.Constraint("Vertical", 0, 3, 1, 3))
sketch8.addConstraint(Sketcher.Constraint("Diameter", 0, Q("0.125 in")))
sketch8.addConstraint(Sketcher.Constraint("DistanceY", 1, 3, 0, 3, Q("0.5 in")))
sketch8.addConstraint(Sketcher.Constraint("DistanceY", 2, 3, 1, 3, Q("4.8 in")))
sketch8.addConstraint(Sketcher.Constraint("DistanceX", 0, 3, -1, 1, 38.886108))
pocket7 = body.newObject("PartDesign::Pocket", "Pocket006")
pocket7.Profile = sketch8
pocket7.Type = "ThroughAll"
pocket7.Reversed = True

doc.recompute()
